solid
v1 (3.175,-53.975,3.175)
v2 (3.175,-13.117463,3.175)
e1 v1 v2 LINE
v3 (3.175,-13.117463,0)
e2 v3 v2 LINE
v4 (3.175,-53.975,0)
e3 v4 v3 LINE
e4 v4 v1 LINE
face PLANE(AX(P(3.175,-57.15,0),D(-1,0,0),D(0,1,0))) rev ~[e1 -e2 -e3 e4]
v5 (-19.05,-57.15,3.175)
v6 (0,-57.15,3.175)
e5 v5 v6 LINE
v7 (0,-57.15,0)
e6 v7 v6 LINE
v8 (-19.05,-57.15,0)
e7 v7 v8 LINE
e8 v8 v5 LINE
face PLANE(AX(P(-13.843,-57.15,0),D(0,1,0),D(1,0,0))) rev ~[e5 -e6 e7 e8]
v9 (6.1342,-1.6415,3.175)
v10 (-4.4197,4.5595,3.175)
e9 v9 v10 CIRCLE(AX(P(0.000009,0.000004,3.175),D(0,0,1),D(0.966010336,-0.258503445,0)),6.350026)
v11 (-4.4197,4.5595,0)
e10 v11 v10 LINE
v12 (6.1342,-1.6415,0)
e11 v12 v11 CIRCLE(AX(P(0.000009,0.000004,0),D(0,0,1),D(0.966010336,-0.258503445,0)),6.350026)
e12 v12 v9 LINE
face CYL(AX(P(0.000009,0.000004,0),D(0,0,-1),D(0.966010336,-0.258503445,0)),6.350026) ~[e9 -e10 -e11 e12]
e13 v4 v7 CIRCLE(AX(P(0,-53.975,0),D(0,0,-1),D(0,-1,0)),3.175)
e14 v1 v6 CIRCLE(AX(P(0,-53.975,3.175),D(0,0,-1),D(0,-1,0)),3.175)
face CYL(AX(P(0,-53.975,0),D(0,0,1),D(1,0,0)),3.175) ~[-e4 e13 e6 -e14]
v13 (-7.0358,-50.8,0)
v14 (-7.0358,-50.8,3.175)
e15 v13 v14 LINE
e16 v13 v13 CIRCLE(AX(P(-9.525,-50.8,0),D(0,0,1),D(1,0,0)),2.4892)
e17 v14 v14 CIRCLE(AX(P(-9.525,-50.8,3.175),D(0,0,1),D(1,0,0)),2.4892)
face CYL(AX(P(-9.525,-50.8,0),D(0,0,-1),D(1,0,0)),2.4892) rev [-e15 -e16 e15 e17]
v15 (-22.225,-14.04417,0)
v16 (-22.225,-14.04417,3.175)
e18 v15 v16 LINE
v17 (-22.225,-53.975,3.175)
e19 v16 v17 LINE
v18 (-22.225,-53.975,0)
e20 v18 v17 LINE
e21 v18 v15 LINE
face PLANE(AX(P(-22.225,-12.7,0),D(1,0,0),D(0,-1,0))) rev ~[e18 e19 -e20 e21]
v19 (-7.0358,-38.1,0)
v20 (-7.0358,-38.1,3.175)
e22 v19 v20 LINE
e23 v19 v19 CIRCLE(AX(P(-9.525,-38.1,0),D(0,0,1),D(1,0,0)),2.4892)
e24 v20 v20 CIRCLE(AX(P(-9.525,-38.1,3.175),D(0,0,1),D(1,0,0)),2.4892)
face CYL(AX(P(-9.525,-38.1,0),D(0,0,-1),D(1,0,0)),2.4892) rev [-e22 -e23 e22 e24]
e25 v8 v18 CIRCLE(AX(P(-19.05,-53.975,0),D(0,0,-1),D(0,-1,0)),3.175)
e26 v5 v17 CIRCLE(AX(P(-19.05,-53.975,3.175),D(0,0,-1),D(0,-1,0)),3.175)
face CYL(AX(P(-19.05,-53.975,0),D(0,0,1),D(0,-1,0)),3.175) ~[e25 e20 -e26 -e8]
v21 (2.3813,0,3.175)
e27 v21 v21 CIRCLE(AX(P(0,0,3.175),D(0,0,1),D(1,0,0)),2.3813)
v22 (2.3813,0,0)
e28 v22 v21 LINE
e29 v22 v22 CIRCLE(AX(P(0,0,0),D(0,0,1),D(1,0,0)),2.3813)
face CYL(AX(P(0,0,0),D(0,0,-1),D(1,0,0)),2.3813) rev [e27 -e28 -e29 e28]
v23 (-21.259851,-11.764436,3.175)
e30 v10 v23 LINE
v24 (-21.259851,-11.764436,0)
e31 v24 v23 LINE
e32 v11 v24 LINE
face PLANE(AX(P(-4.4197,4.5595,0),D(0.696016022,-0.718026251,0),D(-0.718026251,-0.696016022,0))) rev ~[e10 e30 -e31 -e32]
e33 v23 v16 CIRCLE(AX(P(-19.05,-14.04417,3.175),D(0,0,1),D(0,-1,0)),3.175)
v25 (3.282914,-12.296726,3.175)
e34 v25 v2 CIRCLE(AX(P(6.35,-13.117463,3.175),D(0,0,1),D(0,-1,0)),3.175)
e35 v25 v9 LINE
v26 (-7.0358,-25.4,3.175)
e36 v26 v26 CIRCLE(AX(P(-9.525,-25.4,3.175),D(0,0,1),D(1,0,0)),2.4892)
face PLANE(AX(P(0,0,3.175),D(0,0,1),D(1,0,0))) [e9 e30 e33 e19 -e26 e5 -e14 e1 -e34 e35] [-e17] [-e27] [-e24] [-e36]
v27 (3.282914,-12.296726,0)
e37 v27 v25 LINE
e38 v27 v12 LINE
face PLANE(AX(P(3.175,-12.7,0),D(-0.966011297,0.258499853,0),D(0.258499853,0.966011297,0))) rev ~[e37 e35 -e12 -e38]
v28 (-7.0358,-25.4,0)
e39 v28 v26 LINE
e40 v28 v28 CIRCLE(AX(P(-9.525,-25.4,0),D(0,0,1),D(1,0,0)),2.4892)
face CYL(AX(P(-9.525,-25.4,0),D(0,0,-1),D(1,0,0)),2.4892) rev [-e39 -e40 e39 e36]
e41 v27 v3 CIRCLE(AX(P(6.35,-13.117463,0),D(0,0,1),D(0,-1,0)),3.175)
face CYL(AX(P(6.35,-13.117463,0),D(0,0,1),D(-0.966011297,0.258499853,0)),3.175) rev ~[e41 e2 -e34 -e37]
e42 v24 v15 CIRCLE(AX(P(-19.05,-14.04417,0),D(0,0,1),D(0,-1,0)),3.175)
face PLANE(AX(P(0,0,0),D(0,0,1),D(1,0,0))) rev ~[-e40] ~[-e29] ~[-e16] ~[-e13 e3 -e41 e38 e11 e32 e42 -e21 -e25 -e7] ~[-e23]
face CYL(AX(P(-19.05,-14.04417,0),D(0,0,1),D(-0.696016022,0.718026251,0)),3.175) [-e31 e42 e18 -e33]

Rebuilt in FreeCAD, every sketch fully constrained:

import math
import FreeCAD as App
import Part
import Sketcher
Q = App.Units.Quantity


def edges_at(feature, points):
    """Names of the edges that pass closest to the given points."""
    edges = feature.Shape.Edges
    near = lambda p: min(range(len(edges)), key=lambda i: edges[i].distToShape(Part.Vertex(*p))[0])
    return sorted({f"Edge{near(p) + 1}" for p in points})

doc = App.newDocument("Part")
body = doc.addObject("PartDesign::Body", "Body")

# Sketch on XY plane
sketch1 = body.newObject("Sketcher::SketchObject", "Sketch")
sketch1.AttachmentSupport = (doc.getObject("XY_Plane"), [""])
sketch1.MapMode = "FlatFace"
sketch1.addGeometry([
    Part.LineSegment(App.Vector(3.2, -12.7, 0), App.Vector(6.1, -1.6, 0)),  # 0
    Part.ArcOfCircle(Part.Circle(App.Vector(0, 0, 0), App.Vector(0, 0, 1), 6.4), math.radians(-15), math.radians(134)),  # 1
    Part.LineSegment(App.Vector(-4.4, 4.6, 0), App.Vector(-22.2, -12.7, 0)),  # 2
    Part.LineSegment(App.Vector(-22.2, -12.7, 0), App.Vector(-22.2, -57.1, 0)),  # 3
    Part.LineSegment(App.Vector(-22.2, -57.1, 0), App.Vector(3.2, -57.1, 0)),  # 4
    Part.LineSegment(App.Vector(3.2, -57.1, 0), App.Vector(3.2, -12.7, 0)),  # 5
    Part.Circle(App.Vector(0, 0, 0), App.Vector(0, 0, 1), 2.4),  # 6
    Part.Circle(App.Vector(-9.5, -25.4, 0), App.Vector(0, 0, 1), 2.5),  # 7
    Part.Circle(App.Vector(-9.5, -50.8, 0), App.Vector(0, 0, 1), 2.5),  # 8
    Part.Circle(App.Vector(-9.5, -38.1, 0), App.Vector(0, 0, 1), 2.5),  # 9
], False)
sketch1.addConstraint([
    Sketcher.Constraint("Tangent", 0, 2, 1, 1),
    Sketcher.Constraint("Tangent", 1, 2, 2, 1),
    Sketcher.Constraint("Coincident", 2, 2, 3, 1),
    Sketcher.Constraint("Coincident", 3, 2, 4, 1),
    Sketcher.Constraint("Coincident", 4, 2, 5, 1),
    Sketcher.Constraint("Coincident", 5, 2, 0, 1),
    Sketcher.Constraint("Vertical", 3),
    Sketcher.Constraint("Horizontal", 4),
    Sketcher.Constraint("Vertical", 5),
    Sketcher.Constraint("Coincident", 1, 3, -1, 1),
    Sketcher.Constraint("Coincident", 6, 3, -1, 1),
    Sketcher.Constraint("Equal", 7, 8),
    Sketcher.Constraint("Equal", 8, 9),
    Sketcher.Constraint("Horizontal", 2, 2, 5, 2),
    Sketcher.Constraint("Vertical", 7, 3, 8, 3),
    Sketcher.Constraint("Vertical", 8, 3, 9, 3),
    Sketcher.Constraint("DistanceX", 4, 1, 4, 2, Q("1 in")),
    Sketcher.Constraint("Radius", 1, Q("0.25 in")),
    Sketcher.Constraint("Diameter", 6, Q("0.1875 in")),
    Sketcher.Constraint("Diameter", 7, Q("0.196 in")),
    Sketcher.Constraint("DistanceY", 7, 3, -1, 1, Q("1 in")),
    Sketcher.Constraint("DistanceY", 8, 3, 7, 3, Q("1 in")),
    Sketcher.Constraint("DistanceY", 9, 3, 2, 2, Q("1 in")),
    Sketcher.Constraint("DistanceY", 2, 2, -1, 1, Q("0.5 in")),
    Sketcher.Constraint("DistanceX", 2, 2, 7, 3, Q("0.5 in")),
    Sketcher.Constraint("DistanceY", 3, 2, 8, 3, Q("0.25 in")),
    Sketcher.Constraint("DistanceX", -1, 1, 4, 2, Q("0.125 in")),
])
pad1 = body.newObject("PartDesign::Pad", "Pad")
pad1.Profile = sketch1
pad1.Length = Q("0.125 in")
doc.recompute()

fillet = body.newObject("PartDesign::Fillet", "Fillet")
fillet.Base = (pad1, edges_at(pad1, [
    (3.175, -12.7, 1.587),
    (-22.225, -12.7, 1.587),
    (3.175, -57.15, 1.587),
    (-22.225, -57.15, 1.587),
]))
fillet.Radius = Q("0.125 in")

doc.recompute()
